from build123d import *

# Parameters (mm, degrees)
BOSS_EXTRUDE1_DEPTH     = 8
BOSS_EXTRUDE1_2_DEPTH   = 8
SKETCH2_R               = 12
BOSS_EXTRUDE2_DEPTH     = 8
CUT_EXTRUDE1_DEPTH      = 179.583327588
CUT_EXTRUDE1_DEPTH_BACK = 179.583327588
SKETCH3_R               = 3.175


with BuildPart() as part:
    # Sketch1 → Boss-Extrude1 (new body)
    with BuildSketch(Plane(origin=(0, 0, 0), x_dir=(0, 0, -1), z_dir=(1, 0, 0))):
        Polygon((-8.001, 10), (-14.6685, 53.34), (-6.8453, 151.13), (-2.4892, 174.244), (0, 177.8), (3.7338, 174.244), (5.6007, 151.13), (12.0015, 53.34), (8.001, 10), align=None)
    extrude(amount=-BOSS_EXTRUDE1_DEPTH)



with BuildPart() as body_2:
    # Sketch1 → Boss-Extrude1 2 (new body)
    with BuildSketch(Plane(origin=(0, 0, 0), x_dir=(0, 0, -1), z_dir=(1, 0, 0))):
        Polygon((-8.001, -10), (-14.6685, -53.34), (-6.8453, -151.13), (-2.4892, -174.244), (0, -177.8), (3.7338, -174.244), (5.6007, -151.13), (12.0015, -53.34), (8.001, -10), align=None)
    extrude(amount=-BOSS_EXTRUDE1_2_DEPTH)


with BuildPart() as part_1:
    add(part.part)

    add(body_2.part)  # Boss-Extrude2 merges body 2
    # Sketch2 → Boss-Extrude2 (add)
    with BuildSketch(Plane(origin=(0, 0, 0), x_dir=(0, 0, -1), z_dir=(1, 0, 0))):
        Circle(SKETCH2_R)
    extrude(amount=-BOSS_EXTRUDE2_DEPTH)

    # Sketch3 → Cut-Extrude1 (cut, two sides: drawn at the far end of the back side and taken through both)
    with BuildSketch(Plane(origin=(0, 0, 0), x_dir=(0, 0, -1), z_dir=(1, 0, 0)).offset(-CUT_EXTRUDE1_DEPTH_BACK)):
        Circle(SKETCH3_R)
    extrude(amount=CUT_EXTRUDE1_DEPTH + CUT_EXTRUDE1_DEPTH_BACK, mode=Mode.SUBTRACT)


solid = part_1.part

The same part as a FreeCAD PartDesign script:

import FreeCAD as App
import Part
import Sketcher
from FreeCAD import Vector
Q = App.Units.Quantity


def add_polygon(sketch, points):
    """Adds a closed chain of lines whose ends are joined by coincident constraints."""
    first, n = sketch.GeometryCount, len(points)
    for a, b in zip(points, points[1:] + points[:1]):
        sketch.addGeometry(Part.LineSegment(App.Vector(*a, 0), App.Vector(*b, 0)), False)
    for i in range(n):
        sketch.addConstraint(Sketcher.Constraint("Coincident", first + i, 2, first + (i + 1) % n, 1))

doc = App.newDocument("Part")
body = doc.addObject("PartDesign::Body", "Body")

# Sketch on YZ plane
sketch1 = body.newObject("Sketcher::SketchObject", "Sketch")
sketch1.AttachmentSupport = (doc.getObject("YZ_Plane"), [""])
sketch1.MapMode = "FlatFace"
add_polygon(sketch1, [(53.34, 14.6685), (10, 8.001), (10, -8.001), (53.34, -12.0015), (151.13, -5.6007), (174.244, -3.7338), (177.8, 0), (174.244, 2.4892), (151.13, 6.8453)])  # lines 0-8
sketch1.addConstraint([
    Sketcher.Constraint("Vertical", 1),
    Sketcher.Constraint("PointOnObject", 5, 2, -1),
    Sketcher.Constraint("Vertical", 4, 2, 6, 2),
    Sketcher.Constraint("Vertical", 3, 2, 7, 2),
    Sketcher.Constraint("Vertical", 2, 2, 8, 2),
    Sketcher.Constraint("DistanceX", -1, 1, 5, 2, Q("7 in")),
    Sketcher.Constraint("DistanceY", 1, 2, 1, 1, Q("0.63 in")),
    Sketcher.Constraint("DistanceX", -1, 1, 2, 2, Q("2.1 in")),
    Sketcher.Constraint("DistanceX", -1, 1, 3, 2, Q("5.95 in")),
    Sketcher.Constraint("DistanceX", -1, 1, 4, 2, Q("6.86 in")),
    Sketcher.Constraint("DistanceY", 3, 2, 7, 2, Q("0.49 in")),
    Sketcher.Constraint("DistanceY", 2, 2, 8, 2, Q("1.05 in")),
    Sketcher.Constraint("Distance", 5, Q("0.203 in")),
    Sketcher.Constraint("DistanceY", -1, 1, 0, 2, Q("0.315 in")),
    Sketcher.Constraint("DistanceY", -1, 1, 6, 2, Q("0.098 in")),
    Sketcher.Constraint("DistanceY", 2, 2, 3, 2, Q("0.252 in")),
    Sketcher.Constraint("DistanceY", 2, 2, -1, 1, Q("0.4725 in")),
    Sketcher.Constraint("DistanceX", -1, 1, 0, 2, Q("10 mm")),
])
pad1 = body.newObject("PartDesign::Pad", "Pad")
pad1.Profile = sketch1
pad1.Length = 8
pad1.Reversed = True
body2 = doc.addObject("PartDesign::Body", "Body001")

# Sketch on YZ plane
sketch2 = body2.newObject("Sketcher::SketchObject", "Sketch001")
sketch2.AttachmentSupport = (doc.getObject("YZ_Plane001"), [""])
sketch2.MapMode = "FlatFace"
add_polygon(sketch2, [(-10, 8.001), (-53.34, 14.6685), (-151.13, 6.8453), (-174.244, 2.4892), (-177.8, 0), (-174.244, -3.7338), (-151.13, -5.6007), (-53.34, -12.0015), (-10, -8.001)])  # lines 0-8
sketch2.addConstraint([
    Sketcher.Constraint("Vertical", 8),
    Sketcher.Constraint("PointOnObject", 3, 2, -1),
    Sketcher.Constraint("Vertical", 2, 2, 4, 2),
    Sketcher.Constraint("Vertical", 1, 2, 5, 2),
    Sketcher.Constraint("Vertical", 0, 2, 6, 2),
    Sketcher.Constraint("DistanceX", 3, 2, -1, 1, Q("7 in")),
    Sketcher.Constraint("DistanceY", 8, 1, 8, 2, Q("0.63 in")),
    Sketcher.Constraint("DistanceX", 0, 2, -1, 1, Q("2.1 in")),
    Sketcher.Constraint("DistanceX", 1, 2, -1, 1, Q("5.95 in")),
    Sketcher.Constraint("DistanceX", 2, 2, -1, 1, Q("6.86 in")),
    Sketcher.Constraint("DistanceY", 5, 2, 1, 2, Q("0.49 in")),
    Sketcher.Constraint("DistanceY", 6, 2, 0, 2, Q("1.05 in")),
    Sketcher.Constraint("Distance", 4, Q("0.203 in")),
    Sketcher.Constraint("DistanceY", -1, 1, 2, 2, Q("0.098 in")),
    Sketcher.Constraint("DistanceY", 7, 2, -1, 1, Q("0.315 in")),
    Sketcher.Constraint("DistanceY", 1, 2, 0, 2, Q("0.308 in")),
    Sketcher.Constraint("DistanceY", -1, 1, 0, 2, Q("0.5775 in")),
    Sketcher.Constraint("DistanceX", 7, 2, -1, 1, Q("10 mm")),
])
pad2 = body2.newObject("PartDesign::Pad", "Pad001")
pad2.Profile = sketch2
pad2.Length = 8
pad2.Reversed = True
body.AllowCompound = True
doc.recompute()

boolean = body.newObject("PartDesign::Boolean", "Boolean")
boolean.Type = "Fuse"
boolean.addObjects([body2])

# Sketch on YZ plane
sketch3 = body.newObject("Sketcher::SketchObject", "Sketch002")
sketch3.AttachmentSupport = (doc.getObject("YZ_Plane"), [""])
sketch3.MapMode = "FlatFace"
sketch3.addGeometry(Part.Circle(Vector(0, 0, 0), Vector(0, 0, 1), 12), False)
sketch3.addConstraint([
    Sketcher.Constraint("Coincident", 0, 3, -1, 1),
    Sketcher.Constraint("Diameter", 0, Q("24 mm")),
])
pad3 = body.newObject("PartDesign::Pad", "Pad002")
pad3.Profile = sketch3
pad3.Length = 8
pad3.Reversed = True

# Sketch on YZ plane
sketch4 = body.newObject("Sketcher::SketchObject", "Sketch003")
sketch4.AttachmentSupport = (doc.getObject("YZ_Plane"), [""])
sketch4.MapMode = "FlatFace"
sketch4.addGeometry(Part.Circle(Vector(0, 0, 0), Vector(0, 0, 1), 3.175), False)
sketch4.addConstraint([
    Sketcher.Constraint("Coincident", 0, 3, -1, 1),
    Sketcher.Constraint("Diameter", 0, Q("0.25 in")),
])
pocket1 = body.newObject("PartDesign::Pocket", "Pocket")
pocket1.Profile = sketch4
pocket1.Type = "ThroughAll"
pocket1.Midplane = True

doc.recompute()
